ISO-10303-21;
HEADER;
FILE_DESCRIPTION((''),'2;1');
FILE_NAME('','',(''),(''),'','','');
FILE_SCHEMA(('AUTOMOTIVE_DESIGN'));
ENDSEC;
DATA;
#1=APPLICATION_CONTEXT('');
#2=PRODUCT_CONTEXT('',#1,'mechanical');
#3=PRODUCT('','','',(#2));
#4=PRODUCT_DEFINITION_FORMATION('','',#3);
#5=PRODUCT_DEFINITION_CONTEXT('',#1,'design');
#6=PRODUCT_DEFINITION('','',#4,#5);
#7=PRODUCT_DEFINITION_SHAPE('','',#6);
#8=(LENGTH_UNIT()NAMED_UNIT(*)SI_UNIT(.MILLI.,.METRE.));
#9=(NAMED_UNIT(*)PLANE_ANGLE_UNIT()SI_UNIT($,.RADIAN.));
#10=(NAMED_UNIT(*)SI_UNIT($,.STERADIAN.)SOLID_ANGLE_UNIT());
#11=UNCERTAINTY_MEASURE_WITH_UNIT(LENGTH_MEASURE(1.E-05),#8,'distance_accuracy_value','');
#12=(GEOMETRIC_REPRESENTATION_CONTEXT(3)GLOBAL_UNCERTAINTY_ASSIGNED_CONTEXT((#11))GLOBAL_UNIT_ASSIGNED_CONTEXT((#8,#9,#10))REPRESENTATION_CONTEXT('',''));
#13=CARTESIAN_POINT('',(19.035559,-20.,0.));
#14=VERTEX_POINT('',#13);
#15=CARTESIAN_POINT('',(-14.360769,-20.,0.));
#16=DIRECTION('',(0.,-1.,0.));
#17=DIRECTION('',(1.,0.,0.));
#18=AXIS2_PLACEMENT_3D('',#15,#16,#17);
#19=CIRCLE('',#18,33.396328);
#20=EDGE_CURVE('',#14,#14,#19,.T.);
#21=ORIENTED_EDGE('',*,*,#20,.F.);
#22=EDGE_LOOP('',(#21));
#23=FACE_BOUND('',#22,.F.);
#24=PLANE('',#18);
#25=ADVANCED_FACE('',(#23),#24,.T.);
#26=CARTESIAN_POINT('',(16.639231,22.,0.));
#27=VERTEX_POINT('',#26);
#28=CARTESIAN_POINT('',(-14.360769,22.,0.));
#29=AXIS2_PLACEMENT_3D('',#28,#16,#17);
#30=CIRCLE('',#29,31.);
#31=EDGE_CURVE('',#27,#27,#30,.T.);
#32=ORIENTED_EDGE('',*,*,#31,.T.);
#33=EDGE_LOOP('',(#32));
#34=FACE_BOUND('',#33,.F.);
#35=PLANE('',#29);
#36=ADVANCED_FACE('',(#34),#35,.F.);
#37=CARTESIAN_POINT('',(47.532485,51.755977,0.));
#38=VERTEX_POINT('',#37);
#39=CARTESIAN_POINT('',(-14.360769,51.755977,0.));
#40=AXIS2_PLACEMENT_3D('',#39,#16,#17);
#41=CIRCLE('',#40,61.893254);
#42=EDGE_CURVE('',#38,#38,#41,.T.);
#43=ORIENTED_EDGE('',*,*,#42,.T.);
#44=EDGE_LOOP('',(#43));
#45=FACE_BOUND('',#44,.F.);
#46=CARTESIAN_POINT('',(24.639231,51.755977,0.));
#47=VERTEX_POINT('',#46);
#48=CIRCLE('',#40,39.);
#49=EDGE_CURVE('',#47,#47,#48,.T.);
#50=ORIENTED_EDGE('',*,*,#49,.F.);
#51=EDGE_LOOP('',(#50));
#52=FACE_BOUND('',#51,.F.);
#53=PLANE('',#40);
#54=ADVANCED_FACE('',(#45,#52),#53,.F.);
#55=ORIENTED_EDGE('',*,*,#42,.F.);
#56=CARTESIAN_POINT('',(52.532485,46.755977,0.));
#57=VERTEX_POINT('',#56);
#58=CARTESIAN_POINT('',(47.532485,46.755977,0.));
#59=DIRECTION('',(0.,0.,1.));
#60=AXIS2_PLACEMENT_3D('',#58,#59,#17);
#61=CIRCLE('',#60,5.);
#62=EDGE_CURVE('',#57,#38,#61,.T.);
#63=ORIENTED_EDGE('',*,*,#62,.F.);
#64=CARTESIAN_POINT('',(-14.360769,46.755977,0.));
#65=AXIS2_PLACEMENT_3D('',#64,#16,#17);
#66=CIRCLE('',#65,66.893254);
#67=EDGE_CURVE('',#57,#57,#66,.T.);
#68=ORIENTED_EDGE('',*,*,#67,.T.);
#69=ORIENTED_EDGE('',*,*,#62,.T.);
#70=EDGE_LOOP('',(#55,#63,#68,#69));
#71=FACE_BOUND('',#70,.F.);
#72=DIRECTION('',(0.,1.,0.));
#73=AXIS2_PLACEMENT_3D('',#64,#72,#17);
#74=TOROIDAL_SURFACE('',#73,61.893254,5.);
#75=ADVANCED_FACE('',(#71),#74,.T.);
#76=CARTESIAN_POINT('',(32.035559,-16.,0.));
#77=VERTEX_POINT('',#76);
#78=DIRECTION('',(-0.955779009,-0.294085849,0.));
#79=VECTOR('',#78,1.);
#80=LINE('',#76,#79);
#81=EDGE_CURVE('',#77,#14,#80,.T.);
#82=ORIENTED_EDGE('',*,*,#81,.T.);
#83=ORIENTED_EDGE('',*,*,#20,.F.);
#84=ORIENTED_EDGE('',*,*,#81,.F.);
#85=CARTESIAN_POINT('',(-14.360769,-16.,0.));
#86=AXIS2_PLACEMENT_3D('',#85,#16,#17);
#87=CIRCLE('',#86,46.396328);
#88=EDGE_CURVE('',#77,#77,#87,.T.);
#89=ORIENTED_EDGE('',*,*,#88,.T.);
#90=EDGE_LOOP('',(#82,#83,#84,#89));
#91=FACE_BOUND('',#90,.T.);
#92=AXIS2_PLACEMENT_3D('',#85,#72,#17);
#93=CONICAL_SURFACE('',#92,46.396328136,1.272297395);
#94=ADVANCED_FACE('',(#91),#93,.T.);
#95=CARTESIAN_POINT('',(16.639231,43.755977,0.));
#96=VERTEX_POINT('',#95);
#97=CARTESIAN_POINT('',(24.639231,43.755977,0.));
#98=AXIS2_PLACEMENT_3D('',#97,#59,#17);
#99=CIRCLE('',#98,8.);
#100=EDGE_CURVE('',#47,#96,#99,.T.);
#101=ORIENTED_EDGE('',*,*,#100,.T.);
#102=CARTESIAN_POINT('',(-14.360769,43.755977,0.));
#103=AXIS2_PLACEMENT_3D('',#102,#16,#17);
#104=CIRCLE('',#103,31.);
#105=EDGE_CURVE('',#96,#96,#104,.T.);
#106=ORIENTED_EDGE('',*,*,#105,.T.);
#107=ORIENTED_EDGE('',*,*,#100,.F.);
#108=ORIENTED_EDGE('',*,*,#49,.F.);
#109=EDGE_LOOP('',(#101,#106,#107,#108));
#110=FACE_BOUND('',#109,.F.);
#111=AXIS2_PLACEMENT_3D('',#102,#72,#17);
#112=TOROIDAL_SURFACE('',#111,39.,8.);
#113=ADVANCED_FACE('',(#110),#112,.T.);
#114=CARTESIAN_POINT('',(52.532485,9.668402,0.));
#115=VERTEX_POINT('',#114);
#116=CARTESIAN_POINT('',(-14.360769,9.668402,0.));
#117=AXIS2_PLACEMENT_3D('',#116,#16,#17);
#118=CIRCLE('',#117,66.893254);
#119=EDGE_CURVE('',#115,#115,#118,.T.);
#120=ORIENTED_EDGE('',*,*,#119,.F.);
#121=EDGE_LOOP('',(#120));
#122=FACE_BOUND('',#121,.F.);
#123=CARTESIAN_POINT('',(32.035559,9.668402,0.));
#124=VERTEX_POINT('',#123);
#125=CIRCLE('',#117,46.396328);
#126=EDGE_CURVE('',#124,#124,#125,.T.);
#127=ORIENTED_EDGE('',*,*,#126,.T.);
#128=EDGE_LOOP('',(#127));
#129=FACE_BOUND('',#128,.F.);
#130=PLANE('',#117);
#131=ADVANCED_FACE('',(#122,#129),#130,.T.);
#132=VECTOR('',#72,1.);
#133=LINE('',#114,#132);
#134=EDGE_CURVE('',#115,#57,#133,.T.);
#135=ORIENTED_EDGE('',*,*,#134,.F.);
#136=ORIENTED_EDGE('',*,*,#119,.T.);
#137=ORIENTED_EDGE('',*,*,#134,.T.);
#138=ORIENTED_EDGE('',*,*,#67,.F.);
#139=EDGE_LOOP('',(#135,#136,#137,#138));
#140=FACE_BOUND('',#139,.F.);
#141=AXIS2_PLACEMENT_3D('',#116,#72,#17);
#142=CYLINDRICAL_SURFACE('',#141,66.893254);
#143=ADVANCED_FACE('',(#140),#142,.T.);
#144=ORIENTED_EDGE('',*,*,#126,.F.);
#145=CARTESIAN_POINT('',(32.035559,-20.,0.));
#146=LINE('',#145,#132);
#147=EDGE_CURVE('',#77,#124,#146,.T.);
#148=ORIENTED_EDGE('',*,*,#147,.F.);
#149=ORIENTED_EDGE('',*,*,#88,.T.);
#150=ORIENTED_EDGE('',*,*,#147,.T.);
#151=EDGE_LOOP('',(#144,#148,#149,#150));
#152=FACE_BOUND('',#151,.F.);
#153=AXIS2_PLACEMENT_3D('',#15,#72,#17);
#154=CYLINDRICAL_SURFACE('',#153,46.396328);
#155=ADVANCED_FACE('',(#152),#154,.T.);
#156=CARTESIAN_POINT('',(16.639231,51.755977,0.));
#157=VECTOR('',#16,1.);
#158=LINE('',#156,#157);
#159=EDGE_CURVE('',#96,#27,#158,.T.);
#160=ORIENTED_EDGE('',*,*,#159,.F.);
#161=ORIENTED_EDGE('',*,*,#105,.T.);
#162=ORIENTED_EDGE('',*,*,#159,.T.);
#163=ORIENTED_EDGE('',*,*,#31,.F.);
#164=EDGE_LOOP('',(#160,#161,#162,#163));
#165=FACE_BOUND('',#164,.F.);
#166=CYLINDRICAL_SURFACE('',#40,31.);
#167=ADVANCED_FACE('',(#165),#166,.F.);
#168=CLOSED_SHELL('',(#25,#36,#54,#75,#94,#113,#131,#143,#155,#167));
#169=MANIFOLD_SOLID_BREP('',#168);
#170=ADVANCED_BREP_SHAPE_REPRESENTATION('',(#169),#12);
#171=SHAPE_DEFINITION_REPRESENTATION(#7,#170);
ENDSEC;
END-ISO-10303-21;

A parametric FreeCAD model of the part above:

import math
import FreeCAD as App
import Part
import Sketcher
from FreeCAD import Vector


def edges_at(feature, points):
    """Names of the edges that pass closest to the given points."""
    edges = feature.Shape.Edges
    near = lambda p: min(range(len(edges)), key=lambda i: edges[i].distToShape(Part.Vertex(*p))[0])
    return sorted({f"Edge{near(p) + 1}" for p in points})

doc = App.newDocument("Part")
body = doc.addObject("PartDesign::Body", "Body")

# Sketch on XY plane
sketch1 = body.newObject("Sketcher::SketchObject", "Sketch")
sketch1.AttachmentSupport = (doc.getObject("XY_Plane"), [""])
sketch1.MapMode = "FlatFace"
sketch1.addGeometry([
    Part.LineSegment(Vector(-14.360769, 22, 0), Vector(-14.360769, -20, 0)),  # 0
    Part.LineSegment(Vector(-14.360769, -20, 0), Vector(32.035559, -20, 0)),  # 1
    Part.LineSegment(Vector(32.035559, -20, 0), Vector(32.035559, 9.668402, 0)),  # 2
    Part.LineSegment(Vector(32.035559, 9.668402, 0), Vector(52.532485, 9.668402, 0)),  # 3
    Part.LineSegment(Vector(52.532485, 9.668402, 0), Vector(52.532485, 46.755977, 0)),  # 4
    Part.ArcOfCircle(Part.Circle(Vector(47.532485, 46.755977, 0), Vector(0, 0, 1), 5), math.radians(0), math.radians(90)),  # 5
    Part.LineSegment(Vector(47.532485, 51.755977, 0), Vector(16.639231, 51.755977, 0)),  # 6
    Part.LineSegment(Vector(16.639231, 51.755977, 0), Vector(16.639231, 22, 0)),  # 7
    Part.LineSegment(Vector(16.639231, 22, 0), Vector(-14.360769, 22, 0)),  # 8
], False)
sketch1.addGeometry(Part.LineSegment(Vector(-14.360769, 51.755977, 0), Vector(-14.360769, -20, 0)), True)  # axis
sketch1.addConstraint([
    Sketcher.Constraint("Coincident", 0, 2, 1, 1),
    Sketcher.Constraint("Coincident", 1, 2, 2, 1),
    Sketcher.Constraint("Coincident", 2, 2, 3, 1),
    Sketcher.Constraint("Coincident", 3, 2, 4, 1),
    Sketcher.Constraint("Tangent", 4, 2, 5, 1),
    Sketcher.Constraint("Tangent", 5, 2, 6, 1),
    Sketcher.Constraint("Coincident", 6, 2, 7, 1),
    Sketcher.Constraint("Coincident", 7, 2, 8, 1),
    Sketcher.Constraint("Coincident", 8, 2, 0, 1),
    Sketcher.Constraint("Vertical", 0),
    Sketcher.Constraint("Horizontal", 1),
    Sketcher.Constraint("Vertical", 2),
    Sketcher.Constraint("Horizontal", 3),
    Sketcher.Constraint("Vertical", 4),
    Sketcher.Constraint("Horizontal", 6),
    Sketcher.Constraint("Vertical", 7),
    Sketcher.Constraint("Horizontal", 8),
    Sketcher.Constraint("Vertical", 9),
    Sketcher.Constraint("Coincident", 9, 2, 0, 2),
    Sketcher.Constraint("Horizontal", 6, 2, 9, 1),
    Sketcher.Constraint("Radius", 5, 5.0),
    Sketcher.Constraint("DistanceX", 8, 2, 8, 1, 31.0),
    Sketcher.Constraint("DistanceY", 0, 2, 0, 1, 42.0),
    Sketcher.Constraint("DistanceY", 0, 2, -1, 1, 20.0),
    Sketcher.Constraint("DistanceY", 2, 1, 2, 2, 29.668402),
    Sketcher.Constraint("DistanceX", 1, 1, 1, 2, 46.396328),
    Sketcher.Constraint("DistanceX", 3, 1, 3, 2, 20.496926),
    Sketcher.Constraint("DistanceY", 4, 1, 4, 2, 37.087575),
    Sketcher.Constraint("DistanceX", 0, 2, -1, 1, 14.360769),
])
revolution = body.newObject("PartDesign::Revolution", "Revolution")
revolution.Profile = sketch1
revolution.ReferenceAxis = (sketch1, ["Axis0"])
revolution.Angle = 360
doc.recompute()

fillet = body.newObject("PartDesign::Fillet", "Fillet")
fillet.Base = (revolution, edges_at(revolution, [(-45.361, 51.756, 0)]))
fillet.Radius = 8
doc.recompute()

chamfer = body.newObject("PartDesign::Chamfer", "Chamfer")
chamfer.Base = (fillet, edges_at(fillet, [(-60.757, -20, 0)]))
chamfer.ChamferType = "Two distances"
chamfer.Size = 4
chamfer.Size2 = 13

doc.recompute()
